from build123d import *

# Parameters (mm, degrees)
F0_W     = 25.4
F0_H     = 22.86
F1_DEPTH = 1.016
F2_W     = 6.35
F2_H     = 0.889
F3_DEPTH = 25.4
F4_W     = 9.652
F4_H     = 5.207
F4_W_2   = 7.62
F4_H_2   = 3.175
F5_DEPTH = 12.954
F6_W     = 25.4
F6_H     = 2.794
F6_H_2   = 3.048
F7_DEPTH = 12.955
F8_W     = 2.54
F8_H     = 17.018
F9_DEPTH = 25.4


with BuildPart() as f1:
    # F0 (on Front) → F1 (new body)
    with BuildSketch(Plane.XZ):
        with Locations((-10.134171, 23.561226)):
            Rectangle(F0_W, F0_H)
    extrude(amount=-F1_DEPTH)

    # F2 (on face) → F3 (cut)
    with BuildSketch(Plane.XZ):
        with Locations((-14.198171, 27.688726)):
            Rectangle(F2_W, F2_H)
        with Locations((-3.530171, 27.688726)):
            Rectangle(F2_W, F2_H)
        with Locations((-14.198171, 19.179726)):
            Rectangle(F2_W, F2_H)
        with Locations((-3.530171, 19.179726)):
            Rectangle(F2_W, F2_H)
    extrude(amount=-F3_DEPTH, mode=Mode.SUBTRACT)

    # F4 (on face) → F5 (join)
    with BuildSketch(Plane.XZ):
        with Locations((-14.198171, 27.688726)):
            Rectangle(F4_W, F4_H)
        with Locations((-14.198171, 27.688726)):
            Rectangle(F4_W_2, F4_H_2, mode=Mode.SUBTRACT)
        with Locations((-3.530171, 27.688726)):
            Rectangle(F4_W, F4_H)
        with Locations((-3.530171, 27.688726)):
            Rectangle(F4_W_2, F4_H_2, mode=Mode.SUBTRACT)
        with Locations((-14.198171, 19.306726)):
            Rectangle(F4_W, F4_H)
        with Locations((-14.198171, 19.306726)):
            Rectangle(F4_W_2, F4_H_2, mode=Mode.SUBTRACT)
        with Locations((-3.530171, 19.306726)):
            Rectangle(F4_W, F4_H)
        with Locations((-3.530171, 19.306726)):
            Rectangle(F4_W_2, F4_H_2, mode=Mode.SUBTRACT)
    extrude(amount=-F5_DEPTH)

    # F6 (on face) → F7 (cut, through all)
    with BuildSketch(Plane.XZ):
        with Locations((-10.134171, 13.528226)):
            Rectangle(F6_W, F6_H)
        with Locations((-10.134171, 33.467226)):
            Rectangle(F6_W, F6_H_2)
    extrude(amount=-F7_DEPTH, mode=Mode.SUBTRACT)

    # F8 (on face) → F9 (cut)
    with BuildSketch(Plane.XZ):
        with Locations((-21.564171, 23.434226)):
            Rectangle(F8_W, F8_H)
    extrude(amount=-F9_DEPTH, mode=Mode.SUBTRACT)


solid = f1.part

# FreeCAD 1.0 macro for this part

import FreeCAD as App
import Part
import Sketcher
Q = App.Units.Quantity

doc = App.newDocument("Part")
body = doc.addObject("PartDesign::Body", "Body")

sketch1 = doc.addObject("Sketcher::SketchObject", "Sketch")
body.addObject(sketch1)
sketch1.AttachmentSupport = (doc.XZ_Plane, [""])
sketch1.MapMode = "FlatFace"
sketch1.addGeometry(Part.LineSegment(App.Vector(-23, 35, 0), App.Vector(-23, 12, 0)), False)
sketch1.addGeometry(Part.LineSegment(App.Vector(-23, 12, 0), App.Vector(3, 12, 0)), False)
sketch1.addGeometry(Part.LineSegment(App.Vector(3, 12, 0), App.Vector(3, 35, 0)), False)
sketch1.addGeometry(Part.LineSegment(App.Vector(3, 35, 0), App.Vector(-23, 35, 0)), False)
sketch1.addConstraint(Sketcher.Constraint("Coincident", 0, 2, 1, 1))
sketch1.addConstraint(Sketcher.Constraint("Coincident", 1, 2, 2, 1))
sketch1.addConstraint(Sketcher.Constraint("Coincident", 2, 2, 3, 1))
sketch1.addConstraint(Sketcher.Constraint("Coincident", 3, 2, 0, 1))
sketch1.addConstraint(Sketcher.Constraint("Vertical", 0))
sketch1.addConstraint(Sketcher.Constraint("Horizontal", 1))
sketch1.addConstraint(Sketcher.Constraint("Vertical", 2))
sketch1.addConstraint(Sketcher.Constraint("Horizontal", 3))
sketch1.addConstraint(Sketcher.Constraint("DistanceX", 1, 1, 1, 2, Q("1 in")))
sketch1.addConstraint(Sketcher.Constraint("DistanceY", 0, 2, 0, 1, Q("0.9 in")))
sketch1.addConstraint(Sketcher.Constraint("DistanceX", 0, 2, -1, 1, 22.834171))
sketch1.addConstraint(Sketcher.Constraint("DistanceY", -1, 1, 0, 2, 12.131226))
pad1 = doc.addObject("PartDesign::Pad", "Pad")
body.addObject(pad1)
pad1.Profile = sketch1
pad1.Length = Q("0.04 in")
pad1.Reversed = True

sketch2 = doc.addObject("Sketcher::SketchObject", "Sketch001")
body.addObject(sketch2)
sketch2.AttachmentSupport = (doc.XZ_Plane, [""])
sketch2.MapMode = "FlatFace"
sketch2.addGeometry(Part.LineSegment(App.Vector(-17.4, 28.1, 0), App.Vector(-17.4, 27.2, 0)), False)
sketch2.addGeometry(Part.LineSegment(App.Vector(-17.4, 27.2, 0), App.Vector(-11, 27.2, 0)), False)
sketch2.addGeometry(Part.LineSegment(App.Vector(-11, 27.2, 0), App.Vector(-11, 28.1, 0)), False)
sketch2.addGeometry(Part.LineSegment(App.Vector(-11, 28.1, 0), App.Vector(-17.4, 28.1, 0)), False)
sketch2.addGeometry(Part.LineSegment(App.Vector(-6.7, 28.1, 0), App.Vector(-6.7, 27.2, 0)), False)
sketch2.addGeometry(Part.LineSegment(App.Vector(-6.7, 27.2, 0), App.Vector(-0.4, 27.2, 0)), False)
sketch2.addGeometry(Part.LineSegment(App.Vector(-0.4, 27.2, 0), App.Vector(-0.4, 28.1, 0)), False)
sketch2.addGeometry(Part.LineSegment(App.Vector(-0.4, 28.1, 0), App.Vector(-6.7, 28.1, 0)), False)
sketch2.addGeometry(Part.LineSegment(App.Vector(-17.4, 19.6, 0), App.Vector(-17.4, 18.7, 0)), False)
sketch2.addGeometry(Part.LineSegment(App.Vector(-17.4, 18.7, 0), App.Vector(-11, 18.7, 0)), False)
sketch2.addGeometry(Part.LineSegment(App.Vector(-11, 18.7, 0), App.Vector(-11, 19.6, 0)), False)
sketch2.addGeometry(Part.LineSegment(App.Vector(-11, 19.6, 0), App.Vector(-17.4, 19.6, 0)), False)
sketch2.addGeometry(Part.LineSegment(App.Vector(-6.7, 19.6, 0), App.Vector(-6.7, 18.7, 0)), False)
sketch2.addGeometry(Part.LineSegment(App.Vector(-6.7, 18.7, 0), App.Vector(-0.4, 18.7, 0)), False)
sketch2.addGeometry(Part.LineSegment(App.Vector(-0.4, 18.7, 0), App.Vector(-0.4, 19.6, 0)), False)
sketch2.addGeometry(Part.LineSegment(App.Vector(-0.4, 19.6, 0), App.Vector(-6.7, 19.6, 0)), False)
sketch2.addConstraint(Sketcher.Constraint("Coincident", 0, 2, 1, 1))
sketch2.addConstraint(Sketcher.Constraint("Coincident", 1, 2, 2, 1))
sketch2.addConstraint(Sketcher.Constraint("Coincident", 2, 2, 3, 1))
sketch2.addConstraint(Sketcher.Constraint("Coincident", 3, 2, 0, 1))
sketch2.addConstraint(Sketcher.Constraint("Coincident", 4, 2, 5, 1))
sketch2.addConstraint(Sketcher.Constraint("Coincident", 5, 2, 6, 1))
sketch2.addConstraint(Sketcher.Constraint("Coincident", 6, 2, 7, 1))
sketch2.addConstraint(Sketcher.Constraint("Coincident", 7, 2, 4, 1))
sketch2.addConstraint(Sketcher.Constraint("Coincident", 8, 2, 9, 1))
sketch2.addConstraint(Sketcher.Constraint("Coincident", 9, 2, 10, 1))
sketch2.addConstraint(Sketcher.Constraint("Coincident", 10, 2, 11, 1))
sketch2.addConstraint(Sketcher.Constraint("Coincident", 11, 2, 8, 1))
sketch2.addConstraint(Sketcher.Constraint("Coincident", 12, 2, 13, 1))
sketch2.addConstraint(Sketcher.Constraint("Coincident", 13, 2, 14, 1))
sketch2.addConstraint(Sketcher.Constraint("Coincident", 14, 2, 15, 1))
sketch2.addConstraint(Sketcher.Constraint("Coincident", 15, 2, 12, 1))
sketch2.addConstraint(Sketcher.Constraint("Vertical", 0))
sketch2.addConstraint(Sketcher.Constraint("Horizontal", 1))
sketch2.addConstraint(Sketcher.Constraint("Vertical", 2))
sketch2.addConstraint(Sketcher.Constraint("Horizontal", 3))
sketch2.addConstraint(Sketcher.Constraint("Vertical", 4))
sketch2.addConstraint(Sketcher.Constraint("Horizontal", 5))
sketch2.addConstraint(Sketcher.Constraint("Vertical", 6))
sketch2.addConstraint(Sketcher.Constraint("Horizontal", 7))
sketch2.addConstraint(Sketcher.Constraint("Vertical", 8))
sketch2.addConstraint(Sketcher.Constraint("Horizontal", 9))
sketch2.addConstraint(Sketcher.Constraint("Vertical", 10))
sketch2.addConstraint(Sketcher.Constraint("Horizontal", 11))
sketch2.addConstraint(Sketcher.Constraint("Vertical", 12))
sketch2.addConstraint(Sketcher.Constraint("Horizontal", 13))
sketch2.addConstraint(Sketcher.Constraint("Vertical", 14))
sketch2.addConstraint(Sketcher.Constraint("Horizontal", 15))
sketch2.addConstraint(Sketcher.Constraint("Horizontal", 1, 2, 4, 2))
sketch2.addConstraint(Sketcher.Constraint("Horizontal", 3, 2, 6, 2))
sketch2.addConstraint(Sketcher.Constraint("Horizontal", 9, 2, 12, 2))
sketch2.addConstraint(Sketcher.Constraint("Horizontal", 11, 2, 14, 2))
sketch2.addConstraint(Sketcher.Constraint("Vertical", 3, 2, 8, 2))
sketch2.addConstraint(Sketcher.Constraint("Vertical", 2, 2, 9, 2))
sketch2.addConstraint(Sketcher.Constraint("Vertical", 7, 2, 12, 2))
sketch2.addConstraint(Sketcher.Constraint("Vertical", 6, 2, 13, 2))
sketch2.addConstraint(Sketcher.Constraint("Equal", 3, 5))
sketch2.addConstraint(Sketcher.Constraint("Equal", 6, 8))
sketch2.addConstraint(Sketcher.Constraint("DistanceX", 1, 1, 1, 2, Q("0.25 in")))
sketch2.addConstraint(Sketcher.Constraint("DistanceY", 10, 2, 1, 2, Q("0.3 in")))
sketch2.addConstraint(Sketcher.Constraint("DistanceY", 0, 2, 0, 1, Q("0.035 in")))
sketch2.addConstraint(Sketcher.Constraint("DistanceX", 1, 2, 4, 2, Q("0.17 in")))
sketch2.addConstraint(Sketcher.Constraint("DistanceX", 0, 2, -1, 1, 17.373171))
sketch2.addConstraint(Sketcher.Constraint("DistanceY", -1, 1, 0, 2, 27.244226))
pocket1 = doc.addObject("PartDesign::Pocket", "Pocket")
body.addObject(pocket1)
pocket1.Profile = sketch2
pocket1.Length = Q("1 in")

sketch3 = doc.addObject("Sketcher::SketchObject", "Sketch002")
body.addObject(sketch3)
sketch3.AttachmentSupport = (doc.XZ_Plane, [""])
sketch3.MapMode = "FlatFace"
sketch3.addGeometry(Part.LineSegment(App.Vector(-19, 30.3, 0), App.Vector(-19, 25.1, 0)), False)
sketch3.addGeometry(Part.LineSegment(App.Vector(-19, 25.1, 0), App.Vector(-9.4, 25.1, 0)), False)
sketch3.addGeometry(Part.LineSegment(App.Vector(-9.4, 25.1, 0), App.Vector(-9.4, 30.3, 0)), False)
sketch3.addGeometry(Part.LineSegment(App.Vector(-9.4, 30.3, 0), App.Vector(-19, 30.3, 0)), False)
sketch3.addGeometry(Part.LineSegment(App.Vector(-10.4, 26.1, 0), App.Vector(-18, 26.1, 0)), False)
sketch3.addGeometry(Part.LineSegment(App.Vector(-18, 26.1, 0), App.Vector(-18, 29.3, 0)), False)
sketch3.addGeometry(Part.LineSegment(App.Vector(-18, 29.3, 0), App.Vector(-10.4, 29.3, 0)), False)
sketch3.addGeometry(Part.LineSegment(App.Vector(-10.4, 29.3, 0), App.Vector(-10.4, 26.1, 0)), False)
sketch3.addGeometry(Part.LineSegment(App.Vector(-8.4, 30.3, 0), App.Vector(-8.4, 25.1, 0)), False)
sketch3.addGeometry(Part.LineSegment(App.Vector(-8.4, 25.1, 0), App.Vector(1.3, 25.1, 0)), False)
sketch3.addGeometry(Part.LineSegment(App.Vector(1.3, 25.1, 0), App.Vector(1.3, 30.3, 0)), False)
sketch3.addGeometry(Part.LineSegment(App.Vector(1.3, 30.3, 0), App.Vector(-8.4, 30.3, 0)), False)
sketch3.addGeometry(Part.LineSegment(App.Vector(0.3, 26.1, 0), App.Vector(-7.3, 26.1, 0)), False)
sketch3.addGeometry(Part.LineSegment(App.Vector(-7.3, 26.1, 0), App.Vector(-7.3, 29.3, 0)), False)
sketch3.addGeometry(Part.LineSegment(App.Vector(-7.3, 29.3, 0), App.Vector(0.3, 29.3, 0)), False)
sketch3.addGeometry(Part.LineSegment(App.Vector(0.3, 29.3, 0), App.Vector(0.3, 26.1, 0)), False)
sketch3.addGeometry(Part.LineSegment(App.Vector(-19, 21.9, 0), App.Vector(-19, 16.7, 0)), False)
sketch3.addGeometry(Part.LineSegment(App.Vector(-19, 16.7, 0), App.Vector(-9.4, 16.7, 0)), False)
sketch3.addGeometry(Part.LineSegment(App.Vector(-9.4, 16.7, 0), App.Vector(-9.4, 21.9, 0)), False)
sketch3.addGeometry(Part.LineSegment(App.Vector(-9.4, 21.9, 0), App.Vector(-19, 21.9, 0)), False)
sketch3.addGeometry(Part.LineSegment(App.Vector(-10.4, 17.7, 0), App.Vector(-18, 17.7, 0)), False)
sketch3.addGeometry(Part.LineSegment(App.Vector(-18, 17.7, 0), App.Vector(-18, 20.9, 0)), False)
sketch3.addGeometry(Part.LineSegment(App.Vector(-18, 20.9, 0), App.Vector(-10.4, 20.9, 0)), False)
sketch3.addGeometry(Part.LineSegment(App.Vector(-10.4, 20.9, 0), App.Vector(-10.4, 17.7, 0)), False)
sketch3.addGeometry(Part.LineSegment(App.Vector(-8.4, 21.9, 0), App.Vector(-8.4, 16.7, 0)), False)
sketch3.addGeometry(Part.LineSegment(App.Vector(-8.4, 16.7, 0), App.Vector(1.3, 16.7, 0)), False)
sketch3.addGeometry(Part.LineSegment(App.Vector(1.3, 16.7, 0), App.Vector(1.3, 21.9, 0)), False)
sketch3.addGeometry(Part.LineSegment(App.Vector(1.3, 21.9, 0), App.Vector(-8.4, 21.9, 0)), False)
sketch3.addGeometry(Part.LineSegment(App.Vector(0.3, 17.7, 0), App.Vector(-7.3, 17.7, 0)), False)
sketch3.addGeometry(Part.LineSegment(App.Vector(-7.3, 17.7, 0), App.Vector(-7.3, 20.9, 0)), False)
sketch3.addGeometry(Part.LineSegment(App.Vector(-7.3, 20.9, 0), App.Vector(0.3, 20.9, 0)), False)
sketch3.addGeometry(Part.LineSegment(App.Vector(0.3, 20.9, 0), App.Vector(0.3, 17.7, 0)), False)
sketch3.addConstraint(Sketcher.Constraint("Coincident", 0, 2, 1, 1))
sketch3.addConstraint(Sketcher.Constraint("Coincident", 1, 2, 2, 1))
sketch3.addConstraint(Sketcher.Constraint("Coincident", 2, 2, 3, 1))
sketch3.addConstraint(Sketcher.Constraint("Coincident", 3, 2, 0, 1))
sketch3.addConstraint(Sketcher.Constraint("Coincident", 4, 2, 5, 1))
sketch3.addConstraint(Sketcher.Constraint("Coincident", 5, 2, 6, 1))
sketch3.addConstraint(Sketcher.Constraint("Coincident", 6, 2, 7, 1))
sketch3.addConstraint(Sketcher.Constraint("Coincident", 7, 2, 4, 1))
sketch3.addConstraint(Sketcher.Constraint("Coincident", 8, 2, 9, 1))
sketch3.addConstraint(Sketcher.Constraint("Coincident", 9, 2, 10, 1))
sketch3.addConstraint(Sketcher.Constraint("Coincident", 10, 2, 11, 1))
sketch3.addConstraint(Sketcher.Constraint("Coincident", 11, 2, 8, 1))
sketch3.addConstraint(Sketcher.Constraint("Coincident", 12, 2, 13, 1))
sketch3.addConstraint(Sketcher.Constraint("Coincident", 13, 2, 14, 1))
sketch3.addConstraint(Sketcher.Constraint("Coincident", 14, 2, 15, 1))
sketch3.addConstraint(Sketcher.Constraint("Coincident", 15, 2, 12, 1))
sketch3.addConstraint(Sketcher.Constraint("Coincident", 16, 2, 17, 1))
sketch3.addConstraint(Sketcher.Constraint("Coincident", 17, 2, 18, 1))
sketch3.addConstraint(Sketcher.Constraint("Coincident", 18, 2, 19, 1))
sketch3.addConstraint(Sketcher.Constraint("Coincident", 19, 2, 16, 1))
sketch3.addConstraint(Sketcher.Constraint("Coincident", 20, 2, 21, 1))
sketch3.addConstraint(Sketcher.Constraint("Coincident", 21, 2, 22, 1))
sketch3.addConstraint(Sketcher.Constraint("Coincident", 22, 2, 23, 1))
sketch3.addConstraint(Sketcher.Constraint("Coincident", 23, 2, 20, 1))
sketch3.addConstraint(Sketcher.Constraint("Coincident", 24, 2, 25, 1))
sketch3.addConstraint(Sketcher.Constraint("Coincident", 25, 2, 26, 1))
sketch3.addConstraint(Sketcher.Constraint("Coincident", 26, 2, 27, 1))
sketch3.addConstraint(Sketcher.Constraint("Coincident", 27, 2, 24, 1))
sketch3.addConstraint(Sketcher.Constraint("Coincident", 28, 2, 29, 1))
sketch3.addConstraint(Sketcher.Constraint("Coincident", 29, 2, 30, 1))
sketch3.addConstraint(Sketcher.Constraint("Coincident", 30, 2, 31, 1))
sketch3.addConstraint(Sketcher.Constraint("Coincident", 31, 2, 28, 1))
sketch3.addConstraint(Sketcher.Constraint("Vertical", 0))
sketch3.addConstraint(Sketcher.Constraint("Horizontal", 1))
sketch3.addConstraint(Sketcher.Constraint("Vertical", 2))
sketch3.addConstraint(Sketcher.Constraint("Horizontal", 3))
sketch3.addConstraint(Sketcher.Constraint("Horizontal", 4))
sketch3.addConstraint(Sketcher.Constraint("Vertical", 5))
sketch3.addConstraint(Sketcher.Constraint("Horizontal", 6))
sketch3.addConstraint(Sketcher.Constraint("Vertical", 7))
sketch3.addConstraint(Sketcher.Constraint("Vertical", 8))
sketch3.addConstraint(Sketcher.Constraint("Horizontal", 9))
sketch3.addConstraint(Sketcher.Constraint("Vertical", 10))
sketch3.addConstraint(Sketcher.Constraint("Horizontal", 11))
sketch3.addConstraint(Sketcher.Constraint("Horizontal", 12))
sketch3.addConstraint(Sketcher.Constraint("Vertical", 13))
sketch3.addConstraint(Sketcher.Constraint("Horizontal", 14))
sketch3.addConstraint(Sketcher.Constraint("Vertical", 15))
sketch3.addConstraint(Sketcher.Constraint("Vertical", 16))
sketch3.addConstraint(Sketcher.Constraint("Horizontal", 17))
sketch3.addConstraint(Sketcher.Constraint("Vertical", 18))
sketch3.addConstraint(Sketcher.Constraint("Horizontal", 19))
sketch3.addConstraint(Sketcher.Constraint("Horizontal", 20))
sketch3.addConstraint(Sketcher.Constraint("Vertical", 21))
sketch3.addConstraint(Sketcher.Constraint("Horizontal", 22))
sketch3.addConstraint(Sketcher.Constraint("Vertical", 23))
sketch3.addConstraint(Sketcher.Constraint("Vertical", 24))
sketch3.addConstraint(Sketcher.Constraint("Horizontal", 25))
sketch3.addConstraint(Sketcher.Constraint("Vertical", 26))
sketch3.addConstraint(Sketcher.Constraint("Horizontal", 27))
sketch3.addConstraint(Sketcher.Constraint("Horizontal", 28))
sketch3.addConstraint(Sketcher.Constraint("Vertical", 29))
sketch3.addConstraint(Sketcher.Constraint("Horizontal", 30))
sketch3.addConstraint(Sketcher.Constraint("Vertical", 31))
sketch3.addConstraint(Sketcher.Constraint("Horizontal", 1, 2, 8, 2))
sketch3.addConstraint(Sketcher.Constraint("Horizontal", 3, 2, 10, 2))
sketch3.addConstraint(Sketcher.Constraint("Horizontal", 7, 2, 12, 2))
sketch3.addConstraint(Sketcher.Constraint("Horizontal", 6, 2, 13, 2))
sketch3.addConstraint(Sketcher.Constraint("Horizontal", 17, 2, 24, 2))
sketch3.addConstraint(Sketcher.Constraint("Horizontal", 19, 2, 26, 2))
sketch3.addConstraint(Sketcher.Constraint("Horizontal", 23, 2, 28, 2))
sketch3.addConstraint(Sketcher.Constraint("Horizontal", 22, 2, 29, 2))
sketch3.addConstraint(Sketcher.Constraint("Vertical", 3, 2, 16, 2))
sketch3.addConstraint(Sketcher.Constraint("Vertical", 2, 2, 17, 2))
sketch3.addConstraint(Sketcher.Constraint("Vertical", 5, 2, 20, 2))
sketch3.addConstraint(Sketcher.Constraint("Vertical", 7, 2, 22, 2))
sketch3.addConstraint(Sketcher.Constraint("Vertical", 11, 2, 24, 2))
sketch3.addConstraint(Sketcher.Constraint("Vertical", 10, 2, 25, 2))
sketch3.addConstraint(Sketcher.Constraint("Vertical", 13, 2, 28, 2))
sketch3.addConstraint(Sketcher.Constraint("Vertical", 15, 2, 30, 2))
sketch3.addConstraint(Sketcher.Constraint("Equal", 3, 9))
sketch3.addConstraint(Sketcher.Constraint("Equal", 6, 12))
sketch3.addConstraint(Sketcher.Constraint("Equal", 10, 16))
sketch3.addConstraint(Sketcher.Constraint("Equal", 15, 21))
sketch3.addConstraint(Sketcher.Constraint("DistanceX", 4, 2, 4, 1, Q("0.3 in")))
sketch3.addConstraint(Sketcher.Constraint("DistanceX", 1, 1, 1, 2, Q("0.38 in")))
sketch3.addConstraint(Sketcher.Constraint("DistanceY", 0, 2, 0, 1, Q("0.205 in")))
sketch3.addConstraint(Sketcher.Constraint("DistanceY", 5, 1, 5, 2, Q("0.125 in")))
sketch3.addConstraint(Sketcher.Constraint("DistanceX", 0, 2, 4, 2, Q("0.04 in")))
sketch3.addConstraint(Sketcher.Constraint("DistanceY", 0, 2, 4, 2, Q("0.04 in")))
sketch3.addConstraint(Sketcher.Constraint("DistanceX", 1, 2, 8, 2, Q("0.04 in")))
sketch3.addConstraint(Sketcher.Constraint("DistanceX", 8, 2, 12, 2, Q("0.04 in")))
sketch3.addConstraint(Sketcher.Constraint("DistanceY", 16, 2, 0, 2, Q("0.33 in")))
sketch3.addConstraint(Sketcher.Constraint("DistanceY", 16, 2, 20, 2, Q("0.04 in")))
sketch3.addConstraint(Sketcher.Constraint("DistanceX", 0, 2, -1, 1, 19.024171))
sketch3.addConstraint(Sketcher.Constraint("DistanceY", -1, 1, 0, 2, 25.085226))
pad2 = doc.addObject("PartDesign::Pad", "Pad001")
body.addObject(pad2)
pad2.Profile = sketch3
pad2.Length = Q("0.51 in")
pad2.Reversed = True

sketch4 = doc.addObject("Sketcher::SketchObject", "Sketch003")
body.addObject(sketch4)
sketch4.AttachmentSupport = (doc.XZ_Plane, [""])
sketch4.MapMode = "FlatFace"
sketch4.addGeometry(Part.LineSegment(App.Vector(-22.8, 14.9, 0), App.Vector(-22.8, 12.1, 0)), False)
sketch4.addGeometry(Part.LineSegment(App.Vector(-22.8, 12.1, 0), App.Vector(2.6, 12.1, 0)), False)
sketch4.addGeometry(Part.LineSegment(App.Vector(2.6, 12.1, 0), App.Vector(2.6, 14.9, 0)), False)
sketch4.addGeometry(Part.LineSegment(App.Vector(2.6, 14.9, 0), App.Vector(-22.8, 14.9, 0)), False)
sketch4.addGeometry(Part.LineSegment(App.Vector(-22.8, 35, 0), App.Vector(-22.8, 31.9, 0)), False)
sketch4.addGeometry(Part.LineSegment(App.Vector(-22.8, 31.9, 0), App.Vector(2.6, 31.9, 0)), False)
sketch4.addGeometry(Part.LineSegment(App.Vector(2.6, 31.9, 0), App.Vector(2.6, 35, 0)), False)
sketch4.addGeometry(Part.LineSegment(App.Vector(2.6, 35, 0), App.Vector(-22.8, 35, 0)), False)
sketch4.addConstraint(Sketcher.Constraint("Coincident", 0, 2, 1, 1))
sketch4.addConstraint(Sketcher.Constraint("Coincident", 1, 2, 2, 1))
sketch4.addConstraint(Sketcher.Constraint("Coincident", 2, 2, 3, 1))
sketch4.addConstraint(Sketcher.Constraint("Coincident", 3, 2, 0, 1))
sketch4.addConstraint(Sketcher.Constraint("Coincident", 4, 2, 5, 1))
sketch4.addConstraint(Sketcher.Constraint("Coincident", 5, 2, 6, 1))
sketch4.addConstraint(Sketcher.Constraint("Coincident", 6, 2, 7, 1))
sketch4.addConstraint(Sketcher.Constraint("Coincident", 7, 2, 4, 1))
sketch4.addConstraint(Sketcher.Constraint("Vertical", 0))
sketch4.addConstraint(Sketcher.Constraint("Horizontal", 1))
sketch4.addConstraint(Sketcher.Constraint("Vertical", 2))
sketch4.addConstraint(Sketcher.Constraint("Horizontal", 3))
sketch4.addConstraint(Sketcher.Constraint("Vertical", 4))
sketch4.addConstraint(Sketcher.Constraint("Horizontal", 5))
sketch4.addConstraint(Sketcher.Constraint("Vertical", 6))
sketch4.addConstraint(Sketcher.Constraint("Horizontal", 7))
sketch4.addConstraint(Sketcher.Constraint("Vertical", 3, 2, 4, 2))
sketch4.addConstraint(Sketcher.Constraint("Vertical", 2, 2, 5, 2))
sketch4.addConstraint(Sketcher.Constraint("DistanceX", 1, 1, 1, 2, Q("1 in")))
sketch4.addConstraint(Sketcher.Constraint("DistanceY", 0, 2, 0, 1, Q("0.11 in")))
sketch4.addConstraint(Sketcher.Constraint("DistanceY", 4, 2, 4, 1, Q("0.12 in")))
sketch4.addConstraint(Sketcher.Constraint("DistanceY", 1, 2, 6, 2, Q("0.9 in")))
sketch4.addConstraint(Sketcher.Constraint("DistanceX", 0, 2, -1, 1, 22.834171))
sketch4.addConstraint(Sketcher.Constraint("DistanceY", -1, 1, 0, 2, 12.131226))
pocket2 = doc.addObject("PartDesign::Pocket", "Pocket001")
body.addObject(pocket2)
pocket2.Profile = sketch4
pocket2.Type = "ThroughAll"

sketch5 = doc.addObject("Sketcher::SketchObject", "Sketch004")
body.addObject(sketch5)
sketch5.AttachmentSupport = (doc.XZ_Plane, [""])
sketch5.MapMode = "FlatFace"
sketch5.addGeometry(Part.LineSegment(App.Vector(-22.8, 31.9, 0), App.Vector(-22.8, 14.9, 0)), False)
sketch5.addGeometry(Part.LineSegment(App.Vector(-22.8, 14.9, 0), App.Vector(-20.3, 14.9, 0)), False)
sketch5.addGeometry(Part.LineSegment(App.Vector(-20.3, 14.9, 0), App.Vector(-20.3, 31.9, 0)), False)
sketch5.addGeometry(Part.LineSegment(App.Vector(-20.3, 31.9, 0), App.Vector(-22.8, 31.9, 0)), False)
sketch5.addConstraint(Sketcher.Constraint("Coincident", 0, 2, 1, 1))
sketch5.addConstraint(Sketcher.Constraint("Coincident", 1, 2, 2, 1))
sketch5.addConstraint(Sketcher.Constraint("Coincident", 2, 2, 3, 1))
sketch5.addConstraint(Sketcher.Constraint("Coincident", 3, 2, 0, 1))
sketch5.addConstraint(Sketcher.Constraint("Vertical", 0))
sketch5.addConstraint(Sketcher.Constraint("Horizontal", 1))
sketch5.addConstraint(Sketcher.Constraint("Vertical", 2))
sketch5.addConstraint(Sketcher.Constraint("Horizontal", 3))
sketch5.addConstraint(Sketcher.Constraint("DistanceX", 1, 1, 1, 2, Q("0.1 in")))
sketch5.addConstraint(Sketcher.Constraint("DistanceY", 0, 2, 0, 1, Q("0.67 in")))
sketch5.addConstraint(Sketcher.Constraint("DistanceX", 0, 2, -1, 1, 22.834171))
sketch5.addConstraint(Sketcher.Constraint("DistanceY", -1, 1, 0, 2, 14.925226))
pocket3 = doc.addObject("PartDesign::Pocket", "Pocket002")
body.addObject(pocket3)
pocket3.Profile = sketch5
pocket3.Length = Q("1 in")

doc.recompute()
